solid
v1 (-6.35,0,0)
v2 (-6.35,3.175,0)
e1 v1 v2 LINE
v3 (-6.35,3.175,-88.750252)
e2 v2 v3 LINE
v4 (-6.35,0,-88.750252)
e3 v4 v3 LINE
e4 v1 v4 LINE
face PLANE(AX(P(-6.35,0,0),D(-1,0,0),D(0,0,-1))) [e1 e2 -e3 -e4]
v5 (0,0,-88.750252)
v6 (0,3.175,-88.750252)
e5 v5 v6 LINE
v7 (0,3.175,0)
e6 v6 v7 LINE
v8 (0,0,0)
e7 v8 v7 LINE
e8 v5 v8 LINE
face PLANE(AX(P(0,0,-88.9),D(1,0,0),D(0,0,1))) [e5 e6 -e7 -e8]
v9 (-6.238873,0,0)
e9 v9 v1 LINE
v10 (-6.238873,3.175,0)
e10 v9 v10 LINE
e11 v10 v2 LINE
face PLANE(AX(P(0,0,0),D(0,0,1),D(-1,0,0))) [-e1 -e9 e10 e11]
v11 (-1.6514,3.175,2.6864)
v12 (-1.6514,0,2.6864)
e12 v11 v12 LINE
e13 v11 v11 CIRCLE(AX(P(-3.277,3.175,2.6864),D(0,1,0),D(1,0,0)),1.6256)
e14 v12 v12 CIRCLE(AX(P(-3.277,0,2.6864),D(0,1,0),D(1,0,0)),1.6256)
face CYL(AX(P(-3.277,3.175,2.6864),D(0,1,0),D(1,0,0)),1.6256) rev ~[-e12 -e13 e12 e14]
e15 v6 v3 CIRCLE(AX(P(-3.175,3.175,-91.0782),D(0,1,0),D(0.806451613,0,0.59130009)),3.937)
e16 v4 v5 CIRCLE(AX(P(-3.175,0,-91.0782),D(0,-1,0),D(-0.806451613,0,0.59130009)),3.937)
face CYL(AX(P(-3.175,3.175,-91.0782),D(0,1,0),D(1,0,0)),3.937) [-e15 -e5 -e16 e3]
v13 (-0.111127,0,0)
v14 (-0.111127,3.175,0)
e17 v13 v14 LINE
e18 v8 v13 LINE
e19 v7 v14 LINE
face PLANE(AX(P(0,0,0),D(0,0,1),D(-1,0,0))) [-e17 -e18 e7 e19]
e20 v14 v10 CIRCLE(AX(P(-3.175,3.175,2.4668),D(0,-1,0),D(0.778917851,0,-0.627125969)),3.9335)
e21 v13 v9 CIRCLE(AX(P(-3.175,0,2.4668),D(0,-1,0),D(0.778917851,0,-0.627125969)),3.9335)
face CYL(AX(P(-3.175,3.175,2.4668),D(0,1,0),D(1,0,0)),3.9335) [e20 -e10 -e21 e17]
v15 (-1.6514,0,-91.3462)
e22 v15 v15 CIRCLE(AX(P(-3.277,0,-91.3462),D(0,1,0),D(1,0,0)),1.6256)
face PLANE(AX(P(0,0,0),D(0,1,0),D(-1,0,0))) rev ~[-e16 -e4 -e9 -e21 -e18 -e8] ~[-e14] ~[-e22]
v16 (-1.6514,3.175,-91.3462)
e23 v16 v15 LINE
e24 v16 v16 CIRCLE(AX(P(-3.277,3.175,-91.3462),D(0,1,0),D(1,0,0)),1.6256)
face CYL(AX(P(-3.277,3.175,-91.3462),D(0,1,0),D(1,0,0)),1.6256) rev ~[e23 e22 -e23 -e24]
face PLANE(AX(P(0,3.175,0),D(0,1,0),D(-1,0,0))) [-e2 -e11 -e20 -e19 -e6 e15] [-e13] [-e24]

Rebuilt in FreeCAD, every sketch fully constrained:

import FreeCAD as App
import Part
import Sketcher

V = App.Vector
Q = App.Units.Quantity


def add_polygon(sketch, points):
    """Adds a closed chain of lines whose ends are joined by coincident constraints."""
    first, n = sketch.GeometryCount, len(points)
    for a, b in zip(points, points[1:] + points[:1]):
        sketch.addGeometry(Part.LineSegment(App.Vector(*a, 0), App.Vector(*b, 0)), False)
    for i in range(n):
        sketch.addConstraint(Sketcher.Constraint("Coincident", first + i, 2, first + (i + 1) % n, 1))

doc = App.newDocument("Part")
body = doc.addObject("PartDesign::Body", "Body")

sketch1 = doc.addObject("Sketcher::SketchObject", "Sketch")
body.addObject(sketch1)
sketch1.AttachmentSupport = (doc.XZ_Plane, [""])
sketch1.MapMode = "FlatFace"
add_polygon(sketch1, [(-6, 0), (0, 0), (0, -89), (-6, -89)])
sketch1.addConstraint([
    Sketcher.Constraint("Horizontal", 0),
    Sketcher.Constraint("Vertical", 1),
    Sketcher.Constraint("Horizontal", 2),
    Sketcher.Constraint("Vertical", 3),
    Sketcher.Constraint("Coincident", 0, 2, -1, 1),
    Sketcher.Constraint("DistanceY", 1, 2, 1, 1, Q("3.5 in")),
    Sketcher.Constraint("DistanceX", 0, 1, 0, 2, Q("0.25 in")),
])
pad1 = doc.addObject("PartDesign::Pad", "Pad")
body.addObject(pad1)
pad1.Profile = sketch1
pad1.Length = Q("0.125 in")
pad1.Reversed = True

sketch2 = doc.addObject("Sketcher::SketchObject", "Sketch001")
body.addObject(sketch2)
sketch2.AttachmentSupport = (doc.XZ_Plane, [""])
sketch2.MapMode = "FlatFace"
sketch2.AttachmentOffset = App.Placement(V(0, 0, -0.125 * 25.4), App.Rotation())
sketch2.addGeometry([
    Part.Circle(V(-3.2, 2.5, 0), V(0, 0, 1), 3.9),
    Part.Circle(V(-3.2, -91.1, 0), V(0, 0, 1), 3.9),
], False)
sketch2.addConstraint([
    Sketcher.Constraint("Vertical", 0, 3, 1, 3),
    Sketcher.Constraint("Diameter", 1, Q("0.31 in")),
    Sketcher.Constraint("Diameter", 0, Q("7.867 mm")),
    Sketcher.Constraint("DistanceX", 0, 3, -1, 1, Q("0.125 in")),
    Sketcher.Constraint("DistanceY", -1, 1, 0, 3, Q("2.4668 mm")),
    Sketcher.Constraint("DistanceY", 1, 3, -1, 1, Q("91.0782 mm")),
])
pad2 = doc.addObject("PartDesign::Pad", "Pad001")
body.addObject(pad2)
pad2.Profile = sketch2
pad2.Length = Q("0.125 in")

sketch3 = doc.addObject("Sketcher::SketchObject", "Sketch002")
body.addObject(sketch3)
sketch3.AttachmentSupport = (doc.XZ_Plane, [""])
sketch3.MapMode = "FlatFace"
sketch3.AttachmentOffset = App.Placement(V(0, 0, -0.125 * 25.4), App.Rotation())
sketch3.addGeometry([
    Part.Circle(V(-3.3, -91.3, 0), V(0, 0, 1), 1.6),
    Part.Circle(V(-3.3, 2.7, 0), V(0, 0, 1), 1.6),
], False)
sketch3.addConstraint([
    Sketcher.Constraint("Equal", 0, 1),
    Sketcher.Constraint("Vertical", 0, 3, 1, 3),
    Sketcher.Constraint("Diameter", 0, Q("0.128 in")),
    Sketcher.Constraint("DistanceY", 0, 3, -1, 1, Q("3.5963 in")),
    Sketcher.Constraint("DistanceX", 0, 3, -1, 1, Q("3.277 mm")),
    Sketcher.Constraint("DistanceY", -1, 1, 1, 3, Q("2.6864 mm")),
])
pocket1 = doc.addObject("PartDesign::Pocket", "Pocket")
body.addObject(pocket1)
pocket1.Profile = sketch3
pocket1.Length = Q("0.125 in")
pocket1.Reversed = True

doc.recompute()
